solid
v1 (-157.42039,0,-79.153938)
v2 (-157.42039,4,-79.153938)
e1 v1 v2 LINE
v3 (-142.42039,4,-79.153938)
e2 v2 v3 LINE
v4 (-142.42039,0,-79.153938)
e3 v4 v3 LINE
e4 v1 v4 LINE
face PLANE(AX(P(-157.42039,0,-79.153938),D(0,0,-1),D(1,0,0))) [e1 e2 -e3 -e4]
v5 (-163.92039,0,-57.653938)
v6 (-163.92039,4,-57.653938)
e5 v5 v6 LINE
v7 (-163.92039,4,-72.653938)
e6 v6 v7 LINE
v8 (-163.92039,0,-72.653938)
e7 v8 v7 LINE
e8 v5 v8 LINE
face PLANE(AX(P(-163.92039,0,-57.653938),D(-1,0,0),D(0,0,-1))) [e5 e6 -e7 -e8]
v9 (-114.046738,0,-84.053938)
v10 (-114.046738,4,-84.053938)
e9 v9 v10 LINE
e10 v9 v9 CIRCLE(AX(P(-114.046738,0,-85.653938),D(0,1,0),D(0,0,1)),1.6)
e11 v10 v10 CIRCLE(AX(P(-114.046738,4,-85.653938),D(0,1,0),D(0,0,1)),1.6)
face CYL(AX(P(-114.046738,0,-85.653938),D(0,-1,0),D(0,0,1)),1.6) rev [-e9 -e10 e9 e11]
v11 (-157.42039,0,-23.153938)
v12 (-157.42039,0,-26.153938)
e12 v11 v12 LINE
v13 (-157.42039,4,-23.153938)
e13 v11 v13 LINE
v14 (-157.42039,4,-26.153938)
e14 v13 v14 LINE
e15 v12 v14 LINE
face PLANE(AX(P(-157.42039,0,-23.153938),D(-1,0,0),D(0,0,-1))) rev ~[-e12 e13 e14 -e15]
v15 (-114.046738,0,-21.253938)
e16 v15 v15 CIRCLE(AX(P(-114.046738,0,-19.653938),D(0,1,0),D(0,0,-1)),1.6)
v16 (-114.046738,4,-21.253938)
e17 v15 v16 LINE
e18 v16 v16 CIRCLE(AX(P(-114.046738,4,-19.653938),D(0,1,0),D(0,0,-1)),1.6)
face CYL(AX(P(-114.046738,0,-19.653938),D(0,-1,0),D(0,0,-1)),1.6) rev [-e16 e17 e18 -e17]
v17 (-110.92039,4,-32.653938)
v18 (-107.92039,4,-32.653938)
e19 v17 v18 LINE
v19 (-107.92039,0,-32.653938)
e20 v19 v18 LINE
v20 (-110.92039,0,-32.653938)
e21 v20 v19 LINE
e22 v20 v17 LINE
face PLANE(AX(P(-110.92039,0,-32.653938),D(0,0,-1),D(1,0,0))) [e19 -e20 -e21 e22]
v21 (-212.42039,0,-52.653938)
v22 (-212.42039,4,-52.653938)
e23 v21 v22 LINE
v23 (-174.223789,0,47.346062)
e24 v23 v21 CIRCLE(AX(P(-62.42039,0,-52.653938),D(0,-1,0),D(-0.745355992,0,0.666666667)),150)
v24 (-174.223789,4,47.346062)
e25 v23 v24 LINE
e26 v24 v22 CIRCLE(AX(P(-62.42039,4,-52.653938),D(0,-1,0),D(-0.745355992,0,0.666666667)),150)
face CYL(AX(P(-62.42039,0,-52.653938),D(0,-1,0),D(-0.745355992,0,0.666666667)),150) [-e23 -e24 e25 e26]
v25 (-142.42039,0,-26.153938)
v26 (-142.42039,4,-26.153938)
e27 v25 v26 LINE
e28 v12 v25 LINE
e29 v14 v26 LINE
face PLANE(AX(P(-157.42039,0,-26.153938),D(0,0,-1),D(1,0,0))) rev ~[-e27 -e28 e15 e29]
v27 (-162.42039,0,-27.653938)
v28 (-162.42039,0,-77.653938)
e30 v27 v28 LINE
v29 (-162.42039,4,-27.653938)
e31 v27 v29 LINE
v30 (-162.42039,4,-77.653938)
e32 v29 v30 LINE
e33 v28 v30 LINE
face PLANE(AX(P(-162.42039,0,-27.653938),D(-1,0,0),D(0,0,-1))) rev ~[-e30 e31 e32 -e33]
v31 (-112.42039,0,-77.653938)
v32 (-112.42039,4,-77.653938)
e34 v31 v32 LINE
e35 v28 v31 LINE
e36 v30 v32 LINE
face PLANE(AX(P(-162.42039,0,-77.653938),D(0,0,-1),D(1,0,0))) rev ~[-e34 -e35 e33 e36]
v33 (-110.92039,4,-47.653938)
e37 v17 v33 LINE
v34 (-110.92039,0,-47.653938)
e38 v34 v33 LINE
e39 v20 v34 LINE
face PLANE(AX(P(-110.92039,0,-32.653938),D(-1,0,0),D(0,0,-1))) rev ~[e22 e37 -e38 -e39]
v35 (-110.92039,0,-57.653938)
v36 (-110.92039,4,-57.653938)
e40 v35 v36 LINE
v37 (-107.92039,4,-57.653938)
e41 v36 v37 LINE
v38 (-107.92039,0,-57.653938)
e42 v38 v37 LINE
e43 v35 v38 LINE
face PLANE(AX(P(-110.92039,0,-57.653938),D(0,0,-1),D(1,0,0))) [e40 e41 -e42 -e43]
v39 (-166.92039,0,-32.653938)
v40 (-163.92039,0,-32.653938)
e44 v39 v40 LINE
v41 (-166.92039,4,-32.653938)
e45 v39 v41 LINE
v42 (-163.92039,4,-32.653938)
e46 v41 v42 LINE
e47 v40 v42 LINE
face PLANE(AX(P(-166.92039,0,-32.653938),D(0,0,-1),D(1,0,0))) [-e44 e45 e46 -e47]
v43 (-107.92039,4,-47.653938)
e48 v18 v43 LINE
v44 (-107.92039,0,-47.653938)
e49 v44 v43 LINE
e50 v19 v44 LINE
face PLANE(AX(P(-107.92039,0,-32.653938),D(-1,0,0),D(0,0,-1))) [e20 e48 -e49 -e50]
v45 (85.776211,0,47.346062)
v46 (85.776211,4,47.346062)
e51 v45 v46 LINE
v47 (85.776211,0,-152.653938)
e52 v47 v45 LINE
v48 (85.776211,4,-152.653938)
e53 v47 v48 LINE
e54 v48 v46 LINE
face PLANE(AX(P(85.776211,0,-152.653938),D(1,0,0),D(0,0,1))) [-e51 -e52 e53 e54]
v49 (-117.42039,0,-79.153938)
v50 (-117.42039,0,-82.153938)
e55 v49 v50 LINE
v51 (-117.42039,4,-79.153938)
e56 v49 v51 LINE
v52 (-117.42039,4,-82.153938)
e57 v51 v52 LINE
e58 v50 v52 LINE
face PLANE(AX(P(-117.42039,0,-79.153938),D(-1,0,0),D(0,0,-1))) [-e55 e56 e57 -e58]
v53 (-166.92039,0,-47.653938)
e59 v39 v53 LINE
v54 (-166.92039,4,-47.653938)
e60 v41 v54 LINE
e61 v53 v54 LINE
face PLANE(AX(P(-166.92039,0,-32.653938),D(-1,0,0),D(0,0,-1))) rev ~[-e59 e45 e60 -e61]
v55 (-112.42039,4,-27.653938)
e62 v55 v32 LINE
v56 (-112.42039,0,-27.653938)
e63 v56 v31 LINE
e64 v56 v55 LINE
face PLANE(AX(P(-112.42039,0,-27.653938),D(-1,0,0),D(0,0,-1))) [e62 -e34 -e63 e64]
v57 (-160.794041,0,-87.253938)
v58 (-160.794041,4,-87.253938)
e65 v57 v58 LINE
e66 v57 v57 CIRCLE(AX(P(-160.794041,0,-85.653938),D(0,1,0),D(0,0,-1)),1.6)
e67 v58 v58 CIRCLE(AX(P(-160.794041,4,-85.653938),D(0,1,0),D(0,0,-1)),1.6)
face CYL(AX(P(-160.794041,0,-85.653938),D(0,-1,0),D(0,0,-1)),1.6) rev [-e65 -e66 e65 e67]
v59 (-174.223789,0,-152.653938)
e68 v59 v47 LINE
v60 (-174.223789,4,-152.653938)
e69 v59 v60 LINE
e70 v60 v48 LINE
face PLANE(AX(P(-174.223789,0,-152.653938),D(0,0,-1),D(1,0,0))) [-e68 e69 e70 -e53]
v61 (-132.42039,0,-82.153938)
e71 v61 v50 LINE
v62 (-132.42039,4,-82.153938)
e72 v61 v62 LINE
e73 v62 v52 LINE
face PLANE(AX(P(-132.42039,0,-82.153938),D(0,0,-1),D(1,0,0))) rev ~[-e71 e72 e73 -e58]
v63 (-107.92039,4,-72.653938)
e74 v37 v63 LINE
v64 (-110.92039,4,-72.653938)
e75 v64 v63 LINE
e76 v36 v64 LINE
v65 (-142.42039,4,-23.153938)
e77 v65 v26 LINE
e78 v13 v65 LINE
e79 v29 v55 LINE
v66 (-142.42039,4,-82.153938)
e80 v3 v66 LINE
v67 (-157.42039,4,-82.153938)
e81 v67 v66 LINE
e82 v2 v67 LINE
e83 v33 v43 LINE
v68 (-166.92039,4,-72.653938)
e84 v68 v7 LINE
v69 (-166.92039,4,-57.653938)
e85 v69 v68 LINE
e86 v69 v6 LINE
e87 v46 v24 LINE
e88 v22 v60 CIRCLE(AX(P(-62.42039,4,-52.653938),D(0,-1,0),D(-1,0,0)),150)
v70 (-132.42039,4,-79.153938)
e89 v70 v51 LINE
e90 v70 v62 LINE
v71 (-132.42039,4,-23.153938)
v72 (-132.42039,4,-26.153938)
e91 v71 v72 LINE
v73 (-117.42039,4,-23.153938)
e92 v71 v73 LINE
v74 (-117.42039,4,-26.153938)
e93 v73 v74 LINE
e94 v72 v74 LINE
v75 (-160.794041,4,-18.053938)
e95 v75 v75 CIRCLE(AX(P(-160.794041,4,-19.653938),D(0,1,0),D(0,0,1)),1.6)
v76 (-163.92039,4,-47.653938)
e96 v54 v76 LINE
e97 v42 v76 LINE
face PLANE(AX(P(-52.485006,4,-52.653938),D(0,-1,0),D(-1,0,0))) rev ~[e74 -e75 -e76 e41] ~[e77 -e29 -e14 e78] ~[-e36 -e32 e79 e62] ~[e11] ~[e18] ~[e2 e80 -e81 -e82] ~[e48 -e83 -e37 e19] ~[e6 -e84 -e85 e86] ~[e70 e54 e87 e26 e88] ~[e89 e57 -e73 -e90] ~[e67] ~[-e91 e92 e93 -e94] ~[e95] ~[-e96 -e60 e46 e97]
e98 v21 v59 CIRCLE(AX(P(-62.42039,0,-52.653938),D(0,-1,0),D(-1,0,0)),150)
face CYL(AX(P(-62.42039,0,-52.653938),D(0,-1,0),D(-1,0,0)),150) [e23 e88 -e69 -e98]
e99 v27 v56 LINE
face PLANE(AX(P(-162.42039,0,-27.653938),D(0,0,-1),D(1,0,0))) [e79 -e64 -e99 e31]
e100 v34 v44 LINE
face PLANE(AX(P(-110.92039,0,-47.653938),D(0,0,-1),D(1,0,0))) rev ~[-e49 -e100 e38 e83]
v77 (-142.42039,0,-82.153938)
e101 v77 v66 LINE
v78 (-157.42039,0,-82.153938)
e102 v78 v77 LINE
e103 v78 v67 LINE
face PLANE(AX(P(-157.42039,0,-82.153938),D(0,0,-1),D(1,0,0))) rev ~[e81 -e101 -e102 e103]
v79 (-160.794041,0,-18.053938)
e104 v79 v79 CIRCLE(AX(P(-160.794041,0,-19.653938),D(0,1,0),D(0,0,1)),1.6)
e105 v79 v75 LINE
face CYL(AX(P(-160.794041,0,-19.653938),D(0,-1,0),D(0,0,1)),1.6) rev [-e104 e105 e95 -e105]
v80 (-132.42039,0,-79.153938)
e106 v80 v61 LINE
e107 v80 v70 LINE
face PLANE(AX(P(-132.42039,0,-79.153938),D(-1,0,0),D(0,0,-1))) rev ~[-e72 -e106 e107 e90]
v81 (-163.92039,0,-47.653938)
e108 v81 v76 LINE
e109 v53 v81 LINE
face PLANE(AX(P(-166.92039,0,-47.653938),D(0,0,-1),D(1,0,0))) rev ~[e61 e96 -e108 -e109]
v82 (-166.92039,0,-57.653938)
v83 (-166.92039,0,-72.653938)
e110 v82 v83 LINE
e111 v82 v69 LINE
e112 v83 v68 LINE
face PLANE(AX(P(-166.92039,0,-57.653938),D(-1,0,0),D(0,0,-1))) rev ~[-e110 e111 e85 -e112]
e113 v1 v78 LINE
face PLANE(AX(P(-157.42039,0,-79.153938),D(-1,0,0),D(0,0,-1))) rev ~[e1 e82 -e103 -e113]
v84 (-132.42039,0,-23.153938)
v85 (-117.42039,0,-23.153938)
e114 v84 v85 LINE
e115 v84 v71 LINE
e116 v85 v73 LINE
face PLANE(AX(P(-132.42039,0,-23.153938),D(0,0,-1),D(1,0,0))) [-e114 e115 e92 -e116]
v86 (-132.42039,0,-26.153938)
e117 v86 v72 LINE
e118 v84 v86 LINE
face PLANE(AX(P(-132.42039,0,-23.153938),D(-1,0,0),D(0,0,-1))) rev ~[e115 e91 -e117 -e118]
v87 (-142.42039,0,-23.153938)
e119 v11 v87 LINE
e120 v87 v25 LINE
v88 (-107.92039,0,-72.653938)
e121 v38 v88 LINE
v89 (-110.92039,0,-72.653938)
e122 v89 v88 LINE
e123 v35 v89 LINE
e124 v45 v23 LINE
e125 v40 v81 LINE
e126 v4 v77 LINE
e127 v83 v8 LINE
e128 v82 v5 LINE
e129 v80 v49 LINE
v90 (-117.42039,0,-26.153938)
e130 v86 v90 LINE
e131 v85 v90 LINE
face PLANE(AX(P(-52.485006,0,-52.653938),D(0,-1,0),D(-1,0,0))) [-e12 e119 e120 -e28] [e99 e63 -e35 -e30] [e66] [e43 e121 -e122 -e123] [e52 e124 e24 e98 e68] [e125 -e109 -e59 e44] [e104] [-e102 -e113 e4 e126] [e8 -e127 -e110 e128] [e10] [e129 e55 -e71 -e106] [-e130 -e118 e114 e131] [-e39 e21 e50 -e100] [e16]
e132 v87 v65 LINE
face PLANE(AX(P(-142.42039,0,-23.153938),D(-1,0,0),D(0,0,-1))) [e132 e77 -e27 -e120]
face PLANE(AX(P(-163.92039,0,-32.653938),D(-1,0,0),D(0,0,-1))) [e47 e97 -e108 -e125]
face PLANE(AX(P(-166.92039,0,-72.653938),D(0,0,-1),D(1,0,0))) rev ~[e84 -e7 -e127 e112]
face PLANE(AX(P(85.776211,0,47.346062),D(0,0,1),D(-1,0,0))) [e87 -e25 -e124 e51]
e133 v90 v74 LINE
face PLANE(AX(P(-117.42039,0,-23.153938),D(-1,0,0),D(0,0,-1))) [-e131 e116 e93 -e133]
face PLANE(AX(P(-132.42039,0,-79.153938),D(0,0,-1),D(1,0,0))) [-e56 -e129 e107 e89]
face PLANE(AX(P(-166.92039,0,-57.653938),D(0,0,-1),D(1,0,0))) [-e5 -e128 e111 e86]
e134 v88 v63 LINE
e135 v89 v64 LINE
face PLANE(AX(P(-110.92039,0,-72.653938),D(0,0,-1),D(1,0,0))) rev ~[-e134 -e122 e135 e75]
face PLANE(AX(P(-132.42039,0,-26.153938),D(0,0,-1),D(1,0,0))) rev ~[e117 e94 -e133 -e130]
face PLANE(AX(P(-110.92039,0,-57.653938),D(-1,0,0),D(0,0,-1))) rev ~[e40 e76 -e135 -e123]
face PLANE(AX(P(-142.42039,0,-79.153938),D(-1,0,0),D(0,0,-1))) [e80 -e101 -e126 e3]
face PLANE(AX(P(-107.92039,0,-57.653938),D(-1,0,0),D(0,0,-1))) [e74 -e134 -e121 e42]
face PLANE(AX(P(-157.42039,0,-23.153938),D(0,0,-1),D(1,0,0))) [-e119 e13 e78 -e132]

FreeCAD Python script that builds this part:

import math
import FreeCAD as App
import Part
import Sketcher
from FreeCAD import Vector

doc = App.newDocument("Part")
body = doc.addObject("PartDesign::Body", "Body")

# Sketch on XZ plane
sketch1 = doc.addObject("Sketcher::SketchObject", "Sketch")
body.addObject(sketch1)
sketch1.AttachmentSupport = (doc.XZ_Plane, [""])
sketch1.MapMode = "FlatFace"
sketch1.addGeometry([
    Part.LineSegment(Vector(85.776211, 47.346062, 0), Vector(85.776211, -152.653938, 0)),  # 0
    Part.LineSegment(Vector(85.776211, -152.653938, 0), Vector(-174.223789, -152.653938, 0)),  # 1
    Part.ArcOfCircle(Part.Circle(Vector(-62.42039, -52.653938, 0), Vector(0, 0, 1), 150), math.radians(180), math.radians(221.810315)),  # 2
    Part.ArcOfCircle(Part.Circle(Vector(-62.42039, -52.653938, 0), Vector(0, 0, 1), 150), math.radians(138.189685), math.radians(180)),  # 3
    Part.LineSegment(Vector(-174.223789, 47.346062, 0), Vector(85.776211, 47.346062, 0)),  # 4
    Part.Circle(Vector(-114.046738, -19.653938, 0), Vector(0, 0, 1), 1.6),  # 5
    Part.LineSegment(Vector(-132.42039, -23.153938, 0), Vector(-132.42039, -26.153938, 0)),  # 6
    Part.LineSegment(Vector(-132.42039, -26.153938, 0), Vector(-117.42039, -26.153938, 0)),  # 7
    Part.LineSegment(Vector(-117.42039, -26.153938, 0), Vector(-117.42039, -23.153938, 0)),  # 8
    Part.LineSegment(Vector(-117.42039, -23.153938, 0), Vector(-132.42039, -23.153938, 0)),  # 9
    Part.LineSegment(Vector(-110.92039, -32.653938, 0), Vector(-110.92039, -47.653938, 0)),  # 10
    Part.LineSegment(Vector(-110.92039, -47.653938, 0), Vector(-107.92039, -47.653938, 0)),  # 11
    Part.LineSegment(Vector(-107.92039, -47.653938, 0), Vector(-107.92039, -32.653938, 0)),  # 12
    Part.LineSegment(Vector(-107.92039, -32.653938, 0), Vector(-110.92039, -32.653938, 0)),  # 13
    Part.LineSegment(Vector(-157.42039, -23.153938, 0), Vector(-157.42039, -26.153938, 0)),  # 14
    Part.LineSegment(Vector(-157.42039, -26.153938, 0), Vector(-142.42039, -26.153938, 0)),  # 15
    Part.LineSegment(Vector(-142.42039, -26.153938, 0), Vector(-142.42039, -23.153938, 0)),  # 16
    Part.LineSegment(Vector(-142.42039, -23.153938, 0), Vector(-157.42039, -23.153938, 0)),  # 17
    Part.Circle(Vector(-160.794041, -19.653938, 0), Vector(0, 0, 1), 1.6),  # 18
    Part.LineSegment(Vector(-166.92039, -32.653938, 0), Vector(-166.92039, -47.653938, 0)),  # 19
    Part.LineSegment(Vector(-166.92039, -47.653938, 0), Vector(-163.92039, -47.653938, 0)),  # 20
    Part.LineSegment(Vector(-163.92039, -47.653938, 0), Vector(-163.92039, -32.653938, 0)),  # 21
    Part.LineSegment(Vector(-163.92039, -32.653938, 0), Vector(-166.92039, -32.653938, 0)),  # 22
    Part.LineSegment(Vector(-110.92039, -57.653938, 0), Vector(-110.92039, -72.653938, 0)),  # 23
    Part.LineSegment(Vector(-110.92039, -72.653938, 0), Vector(-107.92039, -72.653938, 0)),  # 24
    Part.LineSegment(Vector(-107.92039, -72.653938, 0), Vector(-107.92039, -57.653938, 0)),  # 25
    Part.LineSegment(Vector(-107.92039, -57.653938, 0), Vector(-110.92039, -57.653938, 0)),  # 26
    Part.Circle(Vector(-114.046738, -85.653938, 0), Vector(0, 0, 1), 1.6),  # 27
    Part.LineSegment(Vector(-132.42039, -79.153938, 0), Vector(-132.42039, -82.153938, 0)),  # 28
    Part.LineSegment(Vector(-132.42039, -82.153938, 0), Vector(-117.42039, -82.153938, 0)),  # 29
    Part.LineSegment(Vector(-117.42039, -82.153938, 0), Vector(-117.42039, -79.153938, 0)),  # 30
    Part.LineSegment(Vector(-117.42039, -79.153938, 0), Vector(-132.42039, -79.153938, 0)),  # 31
    Part.LineSegment(Vector(-162.42039, -27.653938, 0), Vector(-162.42039, -77.653938, 0)),  # 32
    Part.LineSegment(Vector(-162.42039, -77.653938, 0), Vector(-112.42039, -77.653938, 0)),  # 33
    Part.LineSegment(Vector(-112.42039, -77.653938, 0), Vector(-112.42039, -27.653938, 0)),  # 34
    Part.LineSegment(Vector(-112.42039, -27.653938, 0), Vector(-162.42039, -27.653938, 0)),  # 35
    Part.LineSegment(Vector(-166.92039, -57.653938, 0), Vector(-166.92039, -72.653938, 0)),  # 36
    Part.LineSegment(Vector(-166.92039, -72.653938, 0), Vector(-163.92039, -72.653938, 0)),  # 37
    Part.LineSegment(Vector(-163.92039, -72.653938, 0), Vector(-163.92039, -57.653938, 0)),  # 38
    Part.LineSegment(Vector(-163.92039, -57.653938, 0), Vector(-166.92039, -57.653938, 0)),  # 39
    Part.LineSegment(Vector(-157.42039, -79.153938, 0), Vector(-157.42039, -82.153938, 0)),  # 40
    Part.LineSegment(Vector(-157.42039, -82.153938, 0), Vector(-142.42039, -82.153938, 0)),  # 41
    Part.LineSegment(Vector(-142.42039, -82.153938, 0), Vector(-142.42039, -79.153938, 0)),  # 42
    Part.LineSegment(Vector(-142.42039, -79.153938, 0), Vector(-157.42039, -79.153938, 0)),  # 43
    Part.Circle(Vector(-160.794041, -85.653938, 0), Vector(0, 0, 1), 1.6),  # 44
], False)
sketch1.addConstraint([
    Sketcher.Constraint("Coincident", 0, 2, 1, 1),
    Sketcher.Constraint("Coincident", 1, 2, 2, 2),
    Sketcher.Constraint("Tangent", 2, 1, 3, 2),
    Sketcher.Constraint("Coincident", 3, 1, 4, 1),
    Sketcher.Constraint("Coincident", 4, 2, 0, 1),
    Sketcher.Constraint("Coincident", 6, 2, 7, 1),
    Sketcher.Constraint("Coincident", 7, 2, 8, 1),
    Sketcher.Constraint("Coincident", 8, 2, 9, 1),
    Sketcher.Constraint("Coincident", 9, 2, 6, 1),
    Sketcher.Constraint("Coincident", 10, 2, 11, 1),
    Sketcher.Constraint("Coincident", 11, 2, 12, 1),
    Sketcher.Constraint("Coincident", 12, 2, 13, 1),
    Sketcher.Constraint("Coincident", 13, 2, 10, 1),
    Sketcher.Constraint("Coincident", 14, 2, 15, 1),
    Sketcher.Constraint("Coincident", 15, 2, 16, 1),
    Sketcher.Constraint("Coincident", 16, 2, 17, 1),
    Sketcher.Constraint("Coincident", 17, 2, 14, 1),
    Sketcher.Constraint("Coincident", 19, 2, 20, 1),
    Sketcher.Constraint("Coincident", 20, 2, 21, 1),
    Sketcher.Constraint("Coincident", 21, 2, 22, 1),
    Sketcher.Constraint("Coincident", 22, 2, 19, 1),
    Sketcher.Constraint("Coincident", 23, 2, 24, 1),
    Sketcher.Constraint("Coincident", 24, 2, 25, 1),
    Sketcher.Constraint("Coincident", 25, 2, 26, 1),
    Sketcher.Constraint("Coincident", 26, 2, 23, 1),
    Sketcher.Constraint("Coincident", 28, 2, 29, 1),
    Sketcher.Constraint("Coincident", 29, 2, 30, 1),
    Sketcher.Constraint("Coincident", 30, 2, 31, 1),
    Sketcher.Constraint("Coincident", 31, 2, 28, 1),
    Sketcher.Constraint("Coincident", 32, 2, 33, 1),
    Sketcher.Constraint("Coincident", 33, 2, 34, 1),
    Sketcher.Constraint("Coincident", 34, 2, 35, 1),
    Sketcher.Constraint("Coincident", 35, 2, 32, 1),
    Sketcher.Constraint("Coincident", 36, 2, 37, 1),
    Sketcher.Constraint("Coincident", 37, 2, 38, 1),
    Sketcher.Constraint("Coincident", 38, 2, 39, 1),
    Sketcher.Constraint("Coincident", 39, 2, 36, 1),
    Sketcher.Constraint("Coincident", 40, 2, 41, 1),
    Sketcher.Constraint("Coincident", 41, 2, 42, 1),
    Sketcher.Constraint("Coincident", 42, 2, 43, 1),
    Sketcher.Constraint("Coincident", 43, 2, 40, 1),
    Sketcher.Constraint("Vertical", 0),
    Sketcher.Constraint("Horizontal", 1),
    Sketcher.Constraint("Horizontal", 4),
    Sketcher.Constraint("Vertical", 6),
    Sketcher.Constraint("Horizontal", 7),
    Sketcher.Constraint("Vertical", 8),
    Sketcher.Constraint("Horizontal", 9),
    Sketcher.Constraint("Vertical", 10),
    Sketcher.Constraint("Horizontal", 11),
    Sketcher.Constraint("Vertical", 12),
    Sketcher.Constraint("Horizontal", 13),
    Sketcher.Constraint("Vertical", 14),
    Sketcher.Constraint("Horizontal", 15),
    Sketcher.Constraint("Vertical", 16),
    Sketcher.Constraint("Horizontal", 17),
    Sketcher.Constraint("Vertical", 19),
    Sketcher.Constraint("Horizontal", 20),
    Sketcher.Constraint("Vertical", 21),
    Sketcher.Constraint("Horizontal", 22),
    Sketcher.Constraint("Vertical", 23),
    Sketcher.Constraint("Horizontal", 24),
    Sketcher.Constraint("Vertical", 25),
    Sketcher.Constraint("Horizontal", 26),
    Sketcher.Constraint("Vertical", 28),
    Sketcher.Constraint("Horizontal", 29),
    Sketcher.Constraint("Vertical", 30),
    Sketcher.Constraint("Horizontal", 31),
    Sketcher.Constraint("Vertical", 32),
    Sketcher.Constraint("Horizontal", 33),
    Sketcher.Constraint("Vertical", 34),
    Sketcher.Constraint("Horizontal", 35),
    Sketcher.Constraint("Vertical", 36),
    Sketcher.Constraint("Horizontal", 37),
    Sketcher.Constraint("Vertical", 38),
    Sketcher.Constraint("Horizontal", 39),
    Sketcher.Constraint("Vertical", 40),
    Sketcher.Constraint("Horizontal", 41),
    Sketcher.Constraint("Vertical", 42),
    Sketcher.Constraint("Horizontal", 43),
    Sketcher.Constraint("Equal", 2, 3),
    Sketcher.Constraint("Equal", 5, 18),
    Sketcher.Constraint("Equal", 18, 27),
    Sketcher.Constraint("Equal", 27, 44),
    Sketcher.Constraint("Horizontal", 5, 3, 18, 3),
    Sketcher.Constraint("Horizontal", 27, 3, 44, 3),
    Sketcher.Constraint("Horizontal", 3, 3, 2, 1),
    Sketcher.Constraint("Horizontal", 7, 2, 14, 2),
    Sketcher.Constraint("Horizontal", 9, 2, 16, 2),
    Sketcher.Constraint("Horizontal", 11, 2, 19, 2),
    Sketcher.Constraint("Horizontal", 13, 2, 21, 2),
    Sketcher.Constraint("Horizontal", 24, 2, 36, 2),
    Sketcher.Constraint("Horizontal", 26, 2, 38, 2),
    Sketcher.Constraint("Horizontal", 29, 2, 40, 2),
    Sketcher.Constraint("Horizontal", 31, 2, 42, 2),
    Sketcher.Constraint("Vertical", 5, 3, 27, 3),
    Sketcher.Constraint("Vertical", 18, 3, 44, 3),
    Sketcher.Constraint("Vertical", 1, 2, 3, 1),
    Sketcher.Constraint("Vertical", 13, 2, 23, 2),
    Sketcher.Constraint("Vertical", 12, 2, 24, 2),
    Sketcher.Constraint("Vertical", 9, 2, 28, 2),
    Sketcher.Constraint("Vertical", 8, 2, 29, 2),
    Sketcher.Constraint("Vertical", 22, 2, 36, 2),
    Sketcher.Constraint("Vertical", 21, 2, 37, 2),
    Sketcher.Constraint("Vertical", 17, 2, 40, 2),
    Sketcher.Constraint("Vertical", 16, 2, 41, 2),
    Sketcher.Constraint("Equal", 9, 15),
    Sketcher.Constraint("Equal", 13, 20),
    Sketcher.Constraint("Equal", 39, 6),
    Sketcher.Constraint("Equal", 43, 10),
    Sketcher.Constraint("Equal", 21, 23),
    Sketcher.Constraint("Equal", 16, 28),
    Sketcher.Constraint("Equal", 35, 32),
    Sketcher.Constraint("Radius", 2, 150.0),
    Sketcher.Constraint("Diameter", 5, 3.2),
    Sketcher.Constraint("DistanceX", 1, 2, 1, 1, 260.0),
    Sketcher.Constraint("DistanceX", 7, 1, 7, 2, 15.0),
    Sketcher.Constraint("DistanceX", 11, 1, 11, 2, 3.0),
    Sketcher.Constraint("DistanceX", 33, 1, 33, 2, 50.0),
    Sketcher.Constraint("DistanceY", 0, 2, 0, 1, 200.0),
    Sketcher.Constraint("DistanceY", 2, 3, 5, 3, 33.0),
    Sketcher.Constraint("DistanceY", 27, 3, 2, 3, 33.0),
    Sketcher.Constraint("DistanceX", 6, 2, 2, 3, 70.0),
    Sketcher.Constraint("DistanceY", 10, 2, 5, 3, 28.0),
    Sketcher.Constraint("DistanceX", 14, 2, 6, 2, 25.0),
    Sketcher.Constraint("DistanceY", 27, 3, 23, 2, 13.0),
    Sketcher.Constraint("DistanceY", 44, 3, 32, 2, 8.0),
    Sketcher.Constraint("DistanceX", 32, 2, 31, 2, 30.0),
    Sketcher.Constraint("DistanceY", 6, 2, 5, 3, 6.5),
    Sketcher.Constraint("DistanceX", 7, 2, 10, 2, 6.5),
    Sketcher.Constraint("DistanceX", 19, 2, 14, 2, 9.5),
    Sketcher.Constraint("DistanceY", 27, 3, 28, 2, 3.5),
    Sketcher.Constraint("DistanceX", 2, 3, -1, 1, 62.42039),
    Sketcher.Constraint("DistanceX", 5, 3, -1, 1, 114.046738),
    Sketcher.Constraint("DistanceX", 18, 3, -1, 1, 160.794041),
    Sketcher.Constraint("DistanceY", 2, 3, -1, 1, 52.653938),
])
pad1 = doc.addObject("PartDesign::Pad", "Pad")
body.addObject(pad1)
pad1.Profile = sketch1
pad1.Length = 4
pad1.Reversed = True

doc.recompute()
